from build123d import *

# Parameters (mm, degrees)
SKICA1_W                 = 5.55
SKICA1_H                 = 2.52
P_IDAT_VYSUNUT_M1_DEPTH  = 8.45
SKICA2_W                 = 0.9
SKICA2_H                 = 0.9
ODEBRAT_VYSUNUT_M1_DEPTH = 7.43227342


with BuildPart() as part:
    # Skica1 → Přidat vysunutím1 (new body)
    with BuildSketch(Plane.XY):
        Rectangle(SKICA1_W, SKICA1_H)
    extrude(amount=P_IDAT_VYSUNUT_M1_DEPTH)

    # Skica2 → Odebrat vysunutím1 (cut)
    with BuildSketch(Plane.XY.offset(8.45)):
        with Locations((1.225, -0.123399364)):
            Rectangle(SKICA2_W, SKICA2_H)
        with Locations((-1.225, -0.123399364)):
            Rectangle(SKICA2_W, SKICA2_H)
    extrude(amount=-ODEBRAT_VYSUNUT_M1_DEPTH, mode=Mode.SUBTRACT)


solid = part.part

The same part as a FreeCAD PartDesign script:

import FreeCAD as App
import Part
import Sketcher

doc = App.newDocument("Part")
body = doc.addObject("PartDesign::Body", "Body")

sketch1 = body.newObject("Sketcher::SketchObject", "Sketch")
sketch1.AttachmentSupport = (doc.getObject("XY_Plane"), [""])
sketch1.MapMode = "FlatFace"
sketch1.addGeometry([
    Part.LineSegment(App.Vector(-2.8, 1.3, 0), App.Vector(-2.8, -1.3, 0)),
    Part.LineSegment(App.Vector(-2.8, -1.3, 0), App.Vector(2.8, -1.3, 0)),
    Part.LineSegment(App.Vector(2.8, -1.3, 0), App.Vector(2.8, 1.3, 0)),
    Part.LineSegment(App.Vector(2.8, 1.3, 0), App.Vector(-2.8, 1.3, 0)),
], False)
sketch1.addConstraint([
    Sketcher.Constraint("Coincident", 0, 2, 1, 1),
    Sketcher.Constraint("Coincident", 1, 2, 2, 1),
    Sketcher.Constraint("Coincident", 2, 2, 3, 1),
    Sketcher.Constraint("Coincident", 3, 2, 0, 1),
    Sketcher.Constraint("Vertical", 0),
    Sketcher.Constraint("Horizontal", 1),
    Sketcher.Constraint("Vertical", 2),
    Sketcher.Constraint("Horizontal", 3),
    Sketcher.Constraint("Symmetric", 0, 2, 2, 2, -1, 1),
    Sketcher.Constraint("DistanceX", 1, 1, 1, 2, 5.55),
    Sketcher.Constraint("DistanceY", 0, 2, 0, 1, 2.52),
])
pad1 = body.newObject("PartDesign::Pad", "Pad")
pad1.Profile = sketch1
pad1.Length = 8.45

sketch2 = body.newObject("Sketcher::SketchObject", "Sketch001")
sketch2.AttachmentSupport = (doc.getObject("XY_Plane"), [""])
sketch2.MapMode = "FlatFace"
sketch2.AttachmentOffset = App.Placement(App.Vector(0, 0, 8.45), App.Rotation())
sketch2.addGeometry([
    Part.LineSegment(App.Vector(0.8, 0.3, 0), App.Vector(0.8, -0.6, 0)),
    Part.LineSegment(App.Vector(0.8, -0.6, 0), App.Vector(1.7, -0.6, 0)),
    Part.LineSegment(App.Vector(1.7, -0.6, 0), App.Vector(1.7, 0.3, 0)),
    Part.LineSegment(App.Vector(1.7, 0.3, 0), App.Vector(0.8, 0.3, 0)),
    Part.LineSegment(App.Vector(-1.7, 0.3, 0), App.Vector(-1.7, -0.6, 0)),
    Part.LineSegment(App.Vector(-1.7, -0.6, 0), App.Vector(-0.8, -0.6, 0)),
    Part.LineSegment(App.Vector(-0.8, -0.6, 0), App.Vector(-0.8, 0.3, 0)),
    Part.LineSegment(App.Vector(-0.8, 0.3, 0), App.Vector(-1.7, 0.3, 0)),
], False)
sketch2.addConstraint([
    Sketcher.Constraint("Coincident", 0, 2, 1, 1),
    Sketcher.Constraint("Coincident", 1, 2, 2, 1),
    Sketcher.Constraint("Coincident", 2, 2, 3, 1),
    Sketcher.Constraint("Coincident", 3, 2, 0, 1),
    Sketcher.Constraint("Coincident", 4, 2, 5, 1),
    Sketcher.Constraint("Coincident", 5, 2, 6, 1),
    Sketcher.Constraint("Coincident", 6, 2, 7, 1),
    Sketcher.Constraint("Coincident", 7, 2, 4, 1),
    Sketcher.Constraint("Vertical", 0),
    Sketcher.Constraint("Horizontal", 1),
    Sketcher.Constraint("Vertical", 2),
    Sketcher.Constraint("Horizontal", 3),
    Sketcher.Constraint("Vertical", 4),
    Sketcher.Constraint("Horizontal", 5),
    Sketcher.Constraint("Vertical", 6),
    Sketcher.Constraint("Horizontal", 7),
    Sketcher.Constraint("Symmetric", 1, 2, 4, 2, -2),
    Sketcher.Constraint("Symmetric", 3, 2, 6, 2, -2),
    Sketcher.Constraint("Equal", 7, 0),
    Sketcher.Constraint("DistanceX", 1, 1, 1, 2, 0.9),
    Sketcher.Constraint("DistanceX", 4, 2, 0, 2, 2.45),
    Sketcher.Constraint("DistanceY", 0, 2, -1, 1, 0.573399),
])
pocket1 = body.newObject("PartDesign::Pocket", "Pocket")
pocket1.Profile = sketch2
pocket1.Length = 7.432273

doc.recompute()
